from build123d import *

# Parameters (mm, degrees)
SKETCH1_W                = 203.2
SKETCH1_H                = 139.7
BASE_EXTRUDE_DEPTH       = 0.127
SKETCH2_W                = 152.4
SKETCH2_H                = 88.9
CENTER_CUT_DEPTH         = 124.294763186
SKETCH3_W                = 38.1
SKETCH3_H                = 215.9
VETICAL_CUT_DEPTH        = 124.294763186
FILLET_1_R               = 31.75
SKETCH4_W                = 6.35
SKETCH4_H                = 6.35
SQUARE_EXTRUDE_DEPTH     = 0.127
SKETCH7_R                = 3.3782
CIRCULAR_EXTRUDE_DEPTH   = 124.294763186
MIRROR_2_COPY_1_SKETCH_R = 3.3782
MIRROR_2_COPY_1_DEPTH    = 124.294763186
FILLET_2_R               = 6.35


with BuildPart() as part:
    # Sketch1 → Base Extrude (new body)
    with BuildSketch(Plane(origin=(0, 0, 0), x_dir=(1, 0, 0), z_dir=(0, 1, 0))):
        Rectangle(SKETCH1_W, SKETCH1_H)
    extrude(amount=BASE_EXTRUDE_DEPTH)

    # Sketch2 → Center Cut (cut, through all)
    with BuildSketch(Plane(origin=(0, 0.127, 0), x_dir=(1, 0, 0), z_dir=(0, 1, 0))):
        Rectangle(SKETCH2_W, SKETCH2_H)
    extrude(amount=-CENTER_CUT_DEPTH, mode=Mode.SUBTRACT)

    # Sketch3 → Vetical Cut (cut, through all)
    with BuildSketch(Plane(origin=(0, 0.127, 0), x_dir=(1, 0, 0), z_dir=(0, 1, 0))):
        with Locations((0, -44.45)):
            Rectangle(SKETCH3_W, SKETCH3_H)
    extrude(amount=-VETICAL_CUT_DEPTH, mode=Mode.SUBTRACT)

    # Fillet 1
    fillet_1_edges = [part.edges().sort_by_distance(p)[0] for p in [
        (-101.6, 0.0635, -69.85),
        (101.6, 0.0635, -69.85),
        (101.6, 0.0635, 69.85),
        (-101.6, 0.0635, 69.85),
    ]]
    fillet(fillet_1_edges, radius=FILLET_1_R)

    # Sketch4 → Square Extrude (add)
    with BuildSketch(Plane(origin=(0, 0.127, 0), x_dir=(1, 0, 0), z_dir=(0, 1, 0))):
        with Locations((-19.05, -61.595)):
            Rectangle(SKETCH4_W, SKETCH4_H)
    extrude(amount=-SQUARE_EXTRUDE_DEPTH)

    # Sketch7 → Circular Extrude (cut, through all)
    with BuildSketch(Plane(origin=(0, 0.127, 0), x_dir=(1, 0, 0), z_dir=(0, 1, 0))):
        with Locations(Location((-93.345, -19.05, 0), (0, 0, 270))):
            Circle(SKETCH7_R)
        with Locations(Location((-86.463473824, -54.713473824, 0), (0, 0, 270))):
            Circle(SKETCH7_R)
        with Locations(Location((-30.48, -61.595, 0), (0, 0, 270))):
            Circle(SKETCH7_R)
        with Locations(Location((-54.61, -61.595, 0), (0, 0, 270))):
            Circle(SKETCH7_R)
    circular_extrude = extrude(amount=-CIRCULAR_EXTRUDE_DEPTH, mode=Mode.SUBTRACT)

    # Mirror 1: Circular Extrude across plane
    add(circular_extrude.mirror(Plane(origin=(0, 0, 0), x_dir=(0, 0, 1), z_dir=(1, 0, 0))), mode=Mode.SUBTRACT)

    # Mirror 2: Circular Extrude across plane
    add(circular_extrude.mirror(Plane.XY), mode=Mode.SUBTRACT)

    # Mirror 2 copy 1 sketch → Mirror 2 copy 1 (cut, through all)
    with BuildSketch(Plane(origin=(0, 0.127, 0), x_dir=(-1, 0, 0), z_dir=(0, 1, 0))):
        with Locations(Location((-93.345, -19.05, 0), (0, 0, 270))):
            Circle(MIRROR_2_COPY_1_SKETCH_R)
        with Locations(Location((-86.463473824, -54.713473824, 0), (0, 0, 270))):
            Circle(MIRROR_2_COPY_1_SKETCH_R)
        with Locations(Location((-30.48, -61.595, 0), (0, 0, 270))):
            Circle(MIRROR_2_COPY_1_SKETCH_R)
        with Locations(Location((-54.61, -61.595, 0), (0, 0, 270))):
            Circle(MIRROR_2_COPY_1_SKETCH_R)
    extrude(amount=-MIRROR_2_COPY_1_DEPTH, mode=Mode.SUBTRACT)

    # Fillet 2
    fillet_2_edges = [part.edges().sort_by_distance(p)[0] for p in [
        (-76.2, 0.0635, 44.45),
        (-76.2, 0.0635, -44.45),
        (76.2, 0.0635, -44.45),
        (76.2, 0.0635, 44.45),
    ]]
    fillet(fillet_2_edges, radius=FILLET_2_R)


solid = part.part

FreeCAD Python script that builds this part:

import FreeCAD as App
import Part
import Sketcher
Q = App.Units.Quantity


def edges_at(feature, points):
    """Names of the edges that pass closest to the given points."""
    edges = feature.Shape.Edges
    near = lambda p: min(range(len(edges)), key=lambda i: edges[i].distToShape(Part.Vertex(*p))[0])
    return sorted({f"Edge{near(p) + 1}" for p in points})

doc = App.newDocument("Part")
body = doc.addObject("PartDesign::Body", "Body")

sketch1 = body.newObject("Sketcher::SketchObject", "Sketch")
sketch1.AttachmentSupport = (doc.getObject("XZ_Plane"), [""])
sketch1.MapMode = "FlatFace"
sketch1.addGeometry(Part.LineSegment(App.Vector(-101.6, -69.85, 0), App.Vector(-101.6, 69.85, 0)), False)
sketch1.addGeometry(Part.LineSegment(App.Vector(-101.6, 69.85, 0), App.Vector(101.6, 69.85, 0)), False)
sketch1.addGeometry(Part.LineSegment(App.Vector(101.6, 69.85, 0), App.Vector(101.6, -69.85, 0)), False)
sketch1.addGeometry(Part.LineSegment(App.Vector(101.6, -69.85, 0), App.Vector(-101.6, -69.85, 0)), False)
sketch1.addConstraint(Sketcher.Constraint("Coincident", 0, 2, 1, 1))
sketch1.addConstraint(Sketcher.Constraint("Coincident", 1, 2, 2, 1))
sketch1.addConstraint(Sketcher.Constraint("Coincident", 2, 2, 3, 1))
sketch1.addConstraint(Sketcher.Constraint("Coincident", 3, 2, 0, 1))
sketch1.addConstraint(Sketcher.Constraint("Vertical", 0))
sketch1.addConstraint(Sketcher.Constraint("Horizontal", 1))
sketch1.addConstraint(Sketcher.Constraint("Vertical", 2))
sketch1.addConstraint(Sketcher.Constraint("Horizontal", 3))
sketch1.addConstraint(Sketcher.Constraint("Symmetric", 0, 2, 2, 2, -1, 1))
sketch1.addConstraint(Sketcher.Constraint("DistanceX", 1, 1, 1, 2, Q("8 in")))
sketch1.addConstraint(Sketcher.Constraint("DistanceY", 0, 1, 0, 2, Q("5.5 in")))
pad1 = body.newObject("PartDesign::Pad", "Pad")
pad1.Profile = sketch1
pad1.Length = Q("0.005 in")
pad1.Reversed = True

sketch2 = body.newObject("Sketcher::SketchObject", "Sketch001")
sketch2.AttachmentSupport = (doc.getObject("XZ_Plane"), [""])
sketch2.MapMode = "FlatFace"
sketch2.AttachmentOffset = App.Placement(App.Vector(0, 0, -0.005 * 25.4), App.Rotation())
sketch2.addGeometry(Part.LineSegment(App.Vector(-76.2, -44.45, 0), App.Vector(-76.2, 44.45, 0)), False)
sketch2.addGeometry(Part.LineSegment(App.Vector(-76.2, 44.45, 0), App.Vector(76.2, 44.45, 0)), False)
sketch2.addGeometry(Part.LineSegment(App.Vector(76.2, 44.45, 0), App.Vector(76.2, -44.45, 0)), False)
sketch2.addGeometry(Part.LineSegment(App.Vector(76.2, -44.45, 0), App.Vector(-76.2, -44.45, 0)), False)
sketch2.addConstraint(Sketcher.Constraint("Coincident", 0, 2, 1, 1))
sketch2.addConstraint(Sketcher.Constraint("Coincident", 1, 2, 2, 1))
sketch2.addConstraint(Sketcher.Constraint("Coincident", 2, 2, 3, 1))
sketch2.addConstraint(Sketcher.Constraint("Coincident", 3, 2, 0, 1))
sketch2.addConstraint(Sketcher.Constraint("Vertical", 0))
sketch2.addConstraint(Sketcher.Constraint("Horizontal", 1))
sketch2.addConstraint(Sketcher.Constraint("Vertical", 2))
sketch2.addConstraint(Sketcher.Constraint("Horizontal", 3))
sketch2.addConstraint(Sketcher.Constraint("Symmetric", 0, 2, 2, 2, -1, 1))
sketch2.addConstraint(Sketcher.Constraint("DistanceX", 1, 1, 1, 2, Q("6 in")))
sketch2.addConstraint(Sketcher.Constraint("DistanceY", 0, 1, 0, 2, Q("3.5 in")))
pocket1 = body.newObject("PartDesign::Pocket", "Pocket")
pocket1.Profile = sketch2
pocket1.Type = "ThroughAll"
pocket1.Reversed = True

sketch3 = body.newObject("Sketcher::SketchObject", "Sketch002")
sketch3.AttachmentSupport = (doc.getObject("XZ_Plane"), [""])
sketch3.MapMode = "FlatFace"
sketch3.AttachmentOffset = App.Placement(App.Vector(0, 0, -0.005 * 25.4), App.Rotation())
sketch3.addGeometry(Part.LineSegment(App.Vector(-19.05, -63.5, 0), App.Vector(-19.05, 152.4, 0)), False)
sketch3.addGeometry(Part.LineSegment(App.Vector(-19.05, 152.4, 0), App.Vector(19.05, 152.4, 0)), False)
sketch3.addGeometry(Part.LineSegment(App.Vector(19.05, 152.4, 0), App.Vector(19.05, -63.5, 0)), False)
sketch3.addGeometry(Part.LineSegment(App.Vector(19.05, -63.5, 0), App.Vector(-19.05, -63.5, 0)), False)
sketch3.addConstraint(Sketcher.Constraint("Coincident", 0, 2, 1, 1))
sketch3.addConstraint(Sketcher.Constraint("Coincident", 1, 2, 2, 1))
sketch3.addConstraint(Sketcher.Constraint("Coincident", 2, 2, 3, 1))
sketch3.addConstraint(Sketcher.Constraint("Coincident", 3, 2, 0, 1))
sketch3.addConstraint(Sketcher.Constraint("Vertical", 0))
sketch3.addConstraint(Sketcher.Constraint("Horizontal", 1))
sketch3.addConstraint(Sketcher.Constraint("Vertical", 2))
sketch3.addConstraint(Sketcher.Constraint("Horizontal", 3))
sketch3.addConstraint(Sketcher.Constraint("DistanceX", 1, 1, 1, 2, Q("1.5 in")))
sketch3.addConstraint(Sketcher.Constraint("DistanceY", 0, 1, 0, 2, Q("8.5 in")))
sketch3.addConstraint(Sketcher.Constraint("DistanceY", -1, 1, 0, 2, Q("6 in")))
sketch3.addConstraint(Sketcher.Constraint("DistanceX", 0, 2, -1, 1, Q("0.75 in")))
pocket2 = body.newObject("PartDesign::Pocket", "Pocket001")
pocket2.Profile = sketch3
pocket2.Type = "ThroughAll"
pocket2.Reversed = True
doc.recompute()

fillet = body.newObject("PartDesign::Fillet", "Fillet")
fillet.Base = (pocket2, edges_at(pocket2, [
    (-101.6, 0.064, -69.85),
    (101.6, 0.064, -69.85),
    (101.6, 0.064, 69.85),
    (-101.6, 0.064, 69.85),
]))
fillet.Radius = Q("1.25 in")

sketch4 = body.newObject("Sketcher::SketchObject", "Sketch003")
sketch4.AttachmentSupport = (doc.getObject("XZ_Plane"), [""])
sketch4.MapMode = "FlatFace"
sketch4.AttachmentOffset = App.Placement(App.Vector(0, 0, -0.005 * 25.4), App.Rotation())
sketch4.addGeometry(Part.LineSegment(App.Vector(-22.225, 58.42, 0), App.Vector(-22.225, 64.77, 0)), False)
sketch4.addGeometry(Part.LineSegment(App.Vector(-22.225, 64.77, 0), App.Vector(-15.875, 64.77, 0)), False)
sketch4.addGeometry(Part.LineSegment(App.Vector(-15.875, 64.77, 0), App.Vector(-15.875, 58.42, 0)), False)
sketch4.addGeometry(Part.LineSegment(App.Vector(-15.875, 58.42, 0), App.Vector(-22.225, 58.42, 0)), False)
sketch4.addConstraint(Sketcher.Constraint("Coincident", 0, 2, 1, 1))
sketch4.addConstraint(Sketcher.Constraint("Coincident", 1, 2, 2, 1))
sketch4.addConstraint(Sketcher.Constraint("Coincident", 2, 2, 3, 1))
sketch4.addConstraint(Sketcher.Constraint("Coincident", 3, 2, 0, 1))
sketch4.addConstraint(Sketcher.Constraint("Vertical", 0))
sketch4.addConstraint(Sketcher.Constraint("Horizontal", 1))
sketch4.addConstraint(Sketcher.Constraint("Vertical", 2))
sketch4.addConstraint(Sketcher.Constraint("Horizontal", 3))
sketch4.addConstraint(Sketcher.Constraint("Equal", 3, 0))
sketch4.addConstraint(Sketcher.Constraint("DistanceX", 1, 1, 1, 2, Q("0.25 in")))
sketch4.addConstraint(Sketcher.Constraint("DistanceY", -1, 1, 2, 2, Q("2.3 in")))
sketch4.addConstraint(Sketcher.Constraint("DistanceX", 0, 2, -1, 1, Q("0.875 in")))
pad2 = body.newObject("PartDesign::Pad", "Pad001")
pad2.Profile = sketch4
pad2.Length = Q("0.005 in")

sketch5 = body.newObject("Sketcher::SketchObject", "Sketch004")
sketch5.AttachmentSupport = (doc.getObject("XZ_Plane"), [""])
sketch5.MapMode = "FlatFace"
sketch5.AttachmentOffset = App.Placement(App.Vector(0, 0, -0.005 * 25.4), App.Rotation())
sketch5.addGeometry(Part.Circle(App.Vector(-93.345, 19.05, 0), App.Vector(0, 0, 1), 3.3782), False)
sketch5.addGeometry(Part.Circle(App.Vector(-86.463474, 54.713474, 0), App.Vector(0, 0, 1), 3.3782), False)
sketch5.addGeometry(Part.Circle(App.Vector(-30.48, 61.595, 0), App.Vector(0, 0, 1), 3.3782), False)
sketch5.addGeometry(Part.Circle(App.Vector(-54.61, 61.595, 0), App.Vector(0, 0, 1), 3.3782), False)
sketch5.addConstraint(Sketcher.Constraint("Equal", 0, 1))
sketch5.addConstraint(Sketcher.Constraint("Equal", 1, 2))
sketch5.addConstraint(Sketcher.Constraint("Equal", 2, 3))
sketch5.addConstraint(Sketcher.Constraint("Horizontal", 2, 3, 3, 3))
sketch5.addConstraint(Sketcher.Constraint("Diameter", 0, Q("0.266 in")))
sketch5.addConstraint(Sketcher.Constraint("DistanceX", 2, 3, -1, 1, Q("1.2 in")))
sketch5.addConstraint(Sketcher.Constraint("DistanceY", -1, 1, 0, 3, Q("0.75 in")))
sketch5.addConstraint(Sketcher.Constraint("DistanceX", 3, 3, -1, 1, Q("2.15 in")))
sketch5.addConstraint(Sketcher.Constraint("DistanceX", 0, 3, -1, 1, Q("3.675 in")))
sketch5.addConstraint(Sketcher.Constraint("DistanceY", -1, 1, 2, 3, Q("2.425 in")))
sketch5.addConstraint(Sketcher.Constraint("DistanceX", 1, 3, -1, 1, Q("86.463474 mm")))
sketch5.addConstraint(Sketcher.Constraint("DistanceY", -1, 1, 1, 3, Q("54.713474 mm")))
pocket3 = body.newObject("PartDesign::Pocket", "Pocket002")
pocket3.Profile = sketch5
pocket3.Type = "ThroughAll"
pocket3.Reversed = True
doc.recompute()

mirrored = body.newObject("PartDesign::Mirrored", "Mirrored")
mirrored.Originals = [pocket3]
mirrored.MirrorPlane = (doc.getObject("YZ_Plane"), [""])
body.Tip = mirrored
doc.recompute()

mirrored2 = body.newObject("PartDesign::Mirrored", "Mirrored001")
mirrored2.Originals = [pocket3]
mirrored2.MirrorPlane = (doc.getObject("XY_Plane"), [""])
body.Tip = mirrored2

sketch6 = body.newObject("Sketcher::SketchObject", "Sketch005")
sketch6.AttachmentSupport = (doc.getObject("XZ_Plane"), [""])
sketch6.MapMode = "FlatFace"
sketch6.AttachmentOffset = App.Placement(App.Vector(0, 0, -0.005 * 25.4), App.Rotation())
sketch6.addGeometry(Part.Circle(App.Vector(93.345, -19.05, 0), App.Vector(0, 0, 1), 3.3782), False)
sketch6.addGeometry(Part.Circle(App.Vector(86.463474, -54.713474, 0), App.Vector(0, 0, 1), 3.3782), False)
sketch6.addGeometry(Part.Circle(App.Vector(30.48, -61.595, 0), App.Vector(0, 0, 1), 3.3782), False)
sketch6.addGeometry(Part.Circle(App.Vector(54.61, -61.595, 0), App.Vector(0, 0, 1), 3.3782), False)
sketch6.addConstraint(Sketcher.Constraint("Equal", 0, 1))
sketch6.addConstraint(Sketcher.Constraint("Equal", 1, 2))
sketch6.addConstraint(Sketcher.Constraint("Equal", 2, 3))
sketch6.addConstraint(Sketcher.Constraint("Horizontal", 2, 3, 3, 3))
sketch6.addConstraint(Sketcher.Constraint("Diameter", 0, Q("0.266 in")))
sketch6.addConstraint(Sketcher.Constraint("DistanceX", -1, 1, 2, 3, Q("1.2 in")))
sketch6.addConstraint(Sketcher.Constraint("DistanceY", 0, 3, -1, 1, Q("0.75 in")))
sketch6.addConstraint(Sketcher.Constraint("DistanceX", -1, 1, 3, 3, Q("2.15 in")))
sketch6.addConstraint(Sketcher.Constraint("DistanceX", -1, 1, 0, 3, Q("3.675 in")))
sketch6.addConstraint(Sketcher.Constraint("DistanceY", 2, 3, -1, 1, Q("2.425 in")))
sketch6.addConstraint(Sketcher.Constraint("DistanceX", -1, 1, 1, 3, Q("86.463474 mm")))
sketch6.addConstraint(Sketcher.Constraint("DistanceY", 1, 3, -1, 1, Q("54.713474 mm")))
pocket4 = body.newObject("PartDesign::Pocket", "Pocket003")
pocket4.Profile = sketch6
pocket4.Type = "ThroughAll"
pocket4.Reversed = True
doc.recompute()

fillet2 = body.newObject("PartDesign::Fillet", "Fillet001")
fillet2.Base = (pocket4, edges_at(pocket4, [
    (-76.2, 0.064, 44.45),
    (-76.2, 0.064, -44.45),
    (76.2, 0.064, -44.45),
    (76.2, 0.064, 44.45),
]))
fillet2.Radius = Q("0.25 in")

doc.recompute()
